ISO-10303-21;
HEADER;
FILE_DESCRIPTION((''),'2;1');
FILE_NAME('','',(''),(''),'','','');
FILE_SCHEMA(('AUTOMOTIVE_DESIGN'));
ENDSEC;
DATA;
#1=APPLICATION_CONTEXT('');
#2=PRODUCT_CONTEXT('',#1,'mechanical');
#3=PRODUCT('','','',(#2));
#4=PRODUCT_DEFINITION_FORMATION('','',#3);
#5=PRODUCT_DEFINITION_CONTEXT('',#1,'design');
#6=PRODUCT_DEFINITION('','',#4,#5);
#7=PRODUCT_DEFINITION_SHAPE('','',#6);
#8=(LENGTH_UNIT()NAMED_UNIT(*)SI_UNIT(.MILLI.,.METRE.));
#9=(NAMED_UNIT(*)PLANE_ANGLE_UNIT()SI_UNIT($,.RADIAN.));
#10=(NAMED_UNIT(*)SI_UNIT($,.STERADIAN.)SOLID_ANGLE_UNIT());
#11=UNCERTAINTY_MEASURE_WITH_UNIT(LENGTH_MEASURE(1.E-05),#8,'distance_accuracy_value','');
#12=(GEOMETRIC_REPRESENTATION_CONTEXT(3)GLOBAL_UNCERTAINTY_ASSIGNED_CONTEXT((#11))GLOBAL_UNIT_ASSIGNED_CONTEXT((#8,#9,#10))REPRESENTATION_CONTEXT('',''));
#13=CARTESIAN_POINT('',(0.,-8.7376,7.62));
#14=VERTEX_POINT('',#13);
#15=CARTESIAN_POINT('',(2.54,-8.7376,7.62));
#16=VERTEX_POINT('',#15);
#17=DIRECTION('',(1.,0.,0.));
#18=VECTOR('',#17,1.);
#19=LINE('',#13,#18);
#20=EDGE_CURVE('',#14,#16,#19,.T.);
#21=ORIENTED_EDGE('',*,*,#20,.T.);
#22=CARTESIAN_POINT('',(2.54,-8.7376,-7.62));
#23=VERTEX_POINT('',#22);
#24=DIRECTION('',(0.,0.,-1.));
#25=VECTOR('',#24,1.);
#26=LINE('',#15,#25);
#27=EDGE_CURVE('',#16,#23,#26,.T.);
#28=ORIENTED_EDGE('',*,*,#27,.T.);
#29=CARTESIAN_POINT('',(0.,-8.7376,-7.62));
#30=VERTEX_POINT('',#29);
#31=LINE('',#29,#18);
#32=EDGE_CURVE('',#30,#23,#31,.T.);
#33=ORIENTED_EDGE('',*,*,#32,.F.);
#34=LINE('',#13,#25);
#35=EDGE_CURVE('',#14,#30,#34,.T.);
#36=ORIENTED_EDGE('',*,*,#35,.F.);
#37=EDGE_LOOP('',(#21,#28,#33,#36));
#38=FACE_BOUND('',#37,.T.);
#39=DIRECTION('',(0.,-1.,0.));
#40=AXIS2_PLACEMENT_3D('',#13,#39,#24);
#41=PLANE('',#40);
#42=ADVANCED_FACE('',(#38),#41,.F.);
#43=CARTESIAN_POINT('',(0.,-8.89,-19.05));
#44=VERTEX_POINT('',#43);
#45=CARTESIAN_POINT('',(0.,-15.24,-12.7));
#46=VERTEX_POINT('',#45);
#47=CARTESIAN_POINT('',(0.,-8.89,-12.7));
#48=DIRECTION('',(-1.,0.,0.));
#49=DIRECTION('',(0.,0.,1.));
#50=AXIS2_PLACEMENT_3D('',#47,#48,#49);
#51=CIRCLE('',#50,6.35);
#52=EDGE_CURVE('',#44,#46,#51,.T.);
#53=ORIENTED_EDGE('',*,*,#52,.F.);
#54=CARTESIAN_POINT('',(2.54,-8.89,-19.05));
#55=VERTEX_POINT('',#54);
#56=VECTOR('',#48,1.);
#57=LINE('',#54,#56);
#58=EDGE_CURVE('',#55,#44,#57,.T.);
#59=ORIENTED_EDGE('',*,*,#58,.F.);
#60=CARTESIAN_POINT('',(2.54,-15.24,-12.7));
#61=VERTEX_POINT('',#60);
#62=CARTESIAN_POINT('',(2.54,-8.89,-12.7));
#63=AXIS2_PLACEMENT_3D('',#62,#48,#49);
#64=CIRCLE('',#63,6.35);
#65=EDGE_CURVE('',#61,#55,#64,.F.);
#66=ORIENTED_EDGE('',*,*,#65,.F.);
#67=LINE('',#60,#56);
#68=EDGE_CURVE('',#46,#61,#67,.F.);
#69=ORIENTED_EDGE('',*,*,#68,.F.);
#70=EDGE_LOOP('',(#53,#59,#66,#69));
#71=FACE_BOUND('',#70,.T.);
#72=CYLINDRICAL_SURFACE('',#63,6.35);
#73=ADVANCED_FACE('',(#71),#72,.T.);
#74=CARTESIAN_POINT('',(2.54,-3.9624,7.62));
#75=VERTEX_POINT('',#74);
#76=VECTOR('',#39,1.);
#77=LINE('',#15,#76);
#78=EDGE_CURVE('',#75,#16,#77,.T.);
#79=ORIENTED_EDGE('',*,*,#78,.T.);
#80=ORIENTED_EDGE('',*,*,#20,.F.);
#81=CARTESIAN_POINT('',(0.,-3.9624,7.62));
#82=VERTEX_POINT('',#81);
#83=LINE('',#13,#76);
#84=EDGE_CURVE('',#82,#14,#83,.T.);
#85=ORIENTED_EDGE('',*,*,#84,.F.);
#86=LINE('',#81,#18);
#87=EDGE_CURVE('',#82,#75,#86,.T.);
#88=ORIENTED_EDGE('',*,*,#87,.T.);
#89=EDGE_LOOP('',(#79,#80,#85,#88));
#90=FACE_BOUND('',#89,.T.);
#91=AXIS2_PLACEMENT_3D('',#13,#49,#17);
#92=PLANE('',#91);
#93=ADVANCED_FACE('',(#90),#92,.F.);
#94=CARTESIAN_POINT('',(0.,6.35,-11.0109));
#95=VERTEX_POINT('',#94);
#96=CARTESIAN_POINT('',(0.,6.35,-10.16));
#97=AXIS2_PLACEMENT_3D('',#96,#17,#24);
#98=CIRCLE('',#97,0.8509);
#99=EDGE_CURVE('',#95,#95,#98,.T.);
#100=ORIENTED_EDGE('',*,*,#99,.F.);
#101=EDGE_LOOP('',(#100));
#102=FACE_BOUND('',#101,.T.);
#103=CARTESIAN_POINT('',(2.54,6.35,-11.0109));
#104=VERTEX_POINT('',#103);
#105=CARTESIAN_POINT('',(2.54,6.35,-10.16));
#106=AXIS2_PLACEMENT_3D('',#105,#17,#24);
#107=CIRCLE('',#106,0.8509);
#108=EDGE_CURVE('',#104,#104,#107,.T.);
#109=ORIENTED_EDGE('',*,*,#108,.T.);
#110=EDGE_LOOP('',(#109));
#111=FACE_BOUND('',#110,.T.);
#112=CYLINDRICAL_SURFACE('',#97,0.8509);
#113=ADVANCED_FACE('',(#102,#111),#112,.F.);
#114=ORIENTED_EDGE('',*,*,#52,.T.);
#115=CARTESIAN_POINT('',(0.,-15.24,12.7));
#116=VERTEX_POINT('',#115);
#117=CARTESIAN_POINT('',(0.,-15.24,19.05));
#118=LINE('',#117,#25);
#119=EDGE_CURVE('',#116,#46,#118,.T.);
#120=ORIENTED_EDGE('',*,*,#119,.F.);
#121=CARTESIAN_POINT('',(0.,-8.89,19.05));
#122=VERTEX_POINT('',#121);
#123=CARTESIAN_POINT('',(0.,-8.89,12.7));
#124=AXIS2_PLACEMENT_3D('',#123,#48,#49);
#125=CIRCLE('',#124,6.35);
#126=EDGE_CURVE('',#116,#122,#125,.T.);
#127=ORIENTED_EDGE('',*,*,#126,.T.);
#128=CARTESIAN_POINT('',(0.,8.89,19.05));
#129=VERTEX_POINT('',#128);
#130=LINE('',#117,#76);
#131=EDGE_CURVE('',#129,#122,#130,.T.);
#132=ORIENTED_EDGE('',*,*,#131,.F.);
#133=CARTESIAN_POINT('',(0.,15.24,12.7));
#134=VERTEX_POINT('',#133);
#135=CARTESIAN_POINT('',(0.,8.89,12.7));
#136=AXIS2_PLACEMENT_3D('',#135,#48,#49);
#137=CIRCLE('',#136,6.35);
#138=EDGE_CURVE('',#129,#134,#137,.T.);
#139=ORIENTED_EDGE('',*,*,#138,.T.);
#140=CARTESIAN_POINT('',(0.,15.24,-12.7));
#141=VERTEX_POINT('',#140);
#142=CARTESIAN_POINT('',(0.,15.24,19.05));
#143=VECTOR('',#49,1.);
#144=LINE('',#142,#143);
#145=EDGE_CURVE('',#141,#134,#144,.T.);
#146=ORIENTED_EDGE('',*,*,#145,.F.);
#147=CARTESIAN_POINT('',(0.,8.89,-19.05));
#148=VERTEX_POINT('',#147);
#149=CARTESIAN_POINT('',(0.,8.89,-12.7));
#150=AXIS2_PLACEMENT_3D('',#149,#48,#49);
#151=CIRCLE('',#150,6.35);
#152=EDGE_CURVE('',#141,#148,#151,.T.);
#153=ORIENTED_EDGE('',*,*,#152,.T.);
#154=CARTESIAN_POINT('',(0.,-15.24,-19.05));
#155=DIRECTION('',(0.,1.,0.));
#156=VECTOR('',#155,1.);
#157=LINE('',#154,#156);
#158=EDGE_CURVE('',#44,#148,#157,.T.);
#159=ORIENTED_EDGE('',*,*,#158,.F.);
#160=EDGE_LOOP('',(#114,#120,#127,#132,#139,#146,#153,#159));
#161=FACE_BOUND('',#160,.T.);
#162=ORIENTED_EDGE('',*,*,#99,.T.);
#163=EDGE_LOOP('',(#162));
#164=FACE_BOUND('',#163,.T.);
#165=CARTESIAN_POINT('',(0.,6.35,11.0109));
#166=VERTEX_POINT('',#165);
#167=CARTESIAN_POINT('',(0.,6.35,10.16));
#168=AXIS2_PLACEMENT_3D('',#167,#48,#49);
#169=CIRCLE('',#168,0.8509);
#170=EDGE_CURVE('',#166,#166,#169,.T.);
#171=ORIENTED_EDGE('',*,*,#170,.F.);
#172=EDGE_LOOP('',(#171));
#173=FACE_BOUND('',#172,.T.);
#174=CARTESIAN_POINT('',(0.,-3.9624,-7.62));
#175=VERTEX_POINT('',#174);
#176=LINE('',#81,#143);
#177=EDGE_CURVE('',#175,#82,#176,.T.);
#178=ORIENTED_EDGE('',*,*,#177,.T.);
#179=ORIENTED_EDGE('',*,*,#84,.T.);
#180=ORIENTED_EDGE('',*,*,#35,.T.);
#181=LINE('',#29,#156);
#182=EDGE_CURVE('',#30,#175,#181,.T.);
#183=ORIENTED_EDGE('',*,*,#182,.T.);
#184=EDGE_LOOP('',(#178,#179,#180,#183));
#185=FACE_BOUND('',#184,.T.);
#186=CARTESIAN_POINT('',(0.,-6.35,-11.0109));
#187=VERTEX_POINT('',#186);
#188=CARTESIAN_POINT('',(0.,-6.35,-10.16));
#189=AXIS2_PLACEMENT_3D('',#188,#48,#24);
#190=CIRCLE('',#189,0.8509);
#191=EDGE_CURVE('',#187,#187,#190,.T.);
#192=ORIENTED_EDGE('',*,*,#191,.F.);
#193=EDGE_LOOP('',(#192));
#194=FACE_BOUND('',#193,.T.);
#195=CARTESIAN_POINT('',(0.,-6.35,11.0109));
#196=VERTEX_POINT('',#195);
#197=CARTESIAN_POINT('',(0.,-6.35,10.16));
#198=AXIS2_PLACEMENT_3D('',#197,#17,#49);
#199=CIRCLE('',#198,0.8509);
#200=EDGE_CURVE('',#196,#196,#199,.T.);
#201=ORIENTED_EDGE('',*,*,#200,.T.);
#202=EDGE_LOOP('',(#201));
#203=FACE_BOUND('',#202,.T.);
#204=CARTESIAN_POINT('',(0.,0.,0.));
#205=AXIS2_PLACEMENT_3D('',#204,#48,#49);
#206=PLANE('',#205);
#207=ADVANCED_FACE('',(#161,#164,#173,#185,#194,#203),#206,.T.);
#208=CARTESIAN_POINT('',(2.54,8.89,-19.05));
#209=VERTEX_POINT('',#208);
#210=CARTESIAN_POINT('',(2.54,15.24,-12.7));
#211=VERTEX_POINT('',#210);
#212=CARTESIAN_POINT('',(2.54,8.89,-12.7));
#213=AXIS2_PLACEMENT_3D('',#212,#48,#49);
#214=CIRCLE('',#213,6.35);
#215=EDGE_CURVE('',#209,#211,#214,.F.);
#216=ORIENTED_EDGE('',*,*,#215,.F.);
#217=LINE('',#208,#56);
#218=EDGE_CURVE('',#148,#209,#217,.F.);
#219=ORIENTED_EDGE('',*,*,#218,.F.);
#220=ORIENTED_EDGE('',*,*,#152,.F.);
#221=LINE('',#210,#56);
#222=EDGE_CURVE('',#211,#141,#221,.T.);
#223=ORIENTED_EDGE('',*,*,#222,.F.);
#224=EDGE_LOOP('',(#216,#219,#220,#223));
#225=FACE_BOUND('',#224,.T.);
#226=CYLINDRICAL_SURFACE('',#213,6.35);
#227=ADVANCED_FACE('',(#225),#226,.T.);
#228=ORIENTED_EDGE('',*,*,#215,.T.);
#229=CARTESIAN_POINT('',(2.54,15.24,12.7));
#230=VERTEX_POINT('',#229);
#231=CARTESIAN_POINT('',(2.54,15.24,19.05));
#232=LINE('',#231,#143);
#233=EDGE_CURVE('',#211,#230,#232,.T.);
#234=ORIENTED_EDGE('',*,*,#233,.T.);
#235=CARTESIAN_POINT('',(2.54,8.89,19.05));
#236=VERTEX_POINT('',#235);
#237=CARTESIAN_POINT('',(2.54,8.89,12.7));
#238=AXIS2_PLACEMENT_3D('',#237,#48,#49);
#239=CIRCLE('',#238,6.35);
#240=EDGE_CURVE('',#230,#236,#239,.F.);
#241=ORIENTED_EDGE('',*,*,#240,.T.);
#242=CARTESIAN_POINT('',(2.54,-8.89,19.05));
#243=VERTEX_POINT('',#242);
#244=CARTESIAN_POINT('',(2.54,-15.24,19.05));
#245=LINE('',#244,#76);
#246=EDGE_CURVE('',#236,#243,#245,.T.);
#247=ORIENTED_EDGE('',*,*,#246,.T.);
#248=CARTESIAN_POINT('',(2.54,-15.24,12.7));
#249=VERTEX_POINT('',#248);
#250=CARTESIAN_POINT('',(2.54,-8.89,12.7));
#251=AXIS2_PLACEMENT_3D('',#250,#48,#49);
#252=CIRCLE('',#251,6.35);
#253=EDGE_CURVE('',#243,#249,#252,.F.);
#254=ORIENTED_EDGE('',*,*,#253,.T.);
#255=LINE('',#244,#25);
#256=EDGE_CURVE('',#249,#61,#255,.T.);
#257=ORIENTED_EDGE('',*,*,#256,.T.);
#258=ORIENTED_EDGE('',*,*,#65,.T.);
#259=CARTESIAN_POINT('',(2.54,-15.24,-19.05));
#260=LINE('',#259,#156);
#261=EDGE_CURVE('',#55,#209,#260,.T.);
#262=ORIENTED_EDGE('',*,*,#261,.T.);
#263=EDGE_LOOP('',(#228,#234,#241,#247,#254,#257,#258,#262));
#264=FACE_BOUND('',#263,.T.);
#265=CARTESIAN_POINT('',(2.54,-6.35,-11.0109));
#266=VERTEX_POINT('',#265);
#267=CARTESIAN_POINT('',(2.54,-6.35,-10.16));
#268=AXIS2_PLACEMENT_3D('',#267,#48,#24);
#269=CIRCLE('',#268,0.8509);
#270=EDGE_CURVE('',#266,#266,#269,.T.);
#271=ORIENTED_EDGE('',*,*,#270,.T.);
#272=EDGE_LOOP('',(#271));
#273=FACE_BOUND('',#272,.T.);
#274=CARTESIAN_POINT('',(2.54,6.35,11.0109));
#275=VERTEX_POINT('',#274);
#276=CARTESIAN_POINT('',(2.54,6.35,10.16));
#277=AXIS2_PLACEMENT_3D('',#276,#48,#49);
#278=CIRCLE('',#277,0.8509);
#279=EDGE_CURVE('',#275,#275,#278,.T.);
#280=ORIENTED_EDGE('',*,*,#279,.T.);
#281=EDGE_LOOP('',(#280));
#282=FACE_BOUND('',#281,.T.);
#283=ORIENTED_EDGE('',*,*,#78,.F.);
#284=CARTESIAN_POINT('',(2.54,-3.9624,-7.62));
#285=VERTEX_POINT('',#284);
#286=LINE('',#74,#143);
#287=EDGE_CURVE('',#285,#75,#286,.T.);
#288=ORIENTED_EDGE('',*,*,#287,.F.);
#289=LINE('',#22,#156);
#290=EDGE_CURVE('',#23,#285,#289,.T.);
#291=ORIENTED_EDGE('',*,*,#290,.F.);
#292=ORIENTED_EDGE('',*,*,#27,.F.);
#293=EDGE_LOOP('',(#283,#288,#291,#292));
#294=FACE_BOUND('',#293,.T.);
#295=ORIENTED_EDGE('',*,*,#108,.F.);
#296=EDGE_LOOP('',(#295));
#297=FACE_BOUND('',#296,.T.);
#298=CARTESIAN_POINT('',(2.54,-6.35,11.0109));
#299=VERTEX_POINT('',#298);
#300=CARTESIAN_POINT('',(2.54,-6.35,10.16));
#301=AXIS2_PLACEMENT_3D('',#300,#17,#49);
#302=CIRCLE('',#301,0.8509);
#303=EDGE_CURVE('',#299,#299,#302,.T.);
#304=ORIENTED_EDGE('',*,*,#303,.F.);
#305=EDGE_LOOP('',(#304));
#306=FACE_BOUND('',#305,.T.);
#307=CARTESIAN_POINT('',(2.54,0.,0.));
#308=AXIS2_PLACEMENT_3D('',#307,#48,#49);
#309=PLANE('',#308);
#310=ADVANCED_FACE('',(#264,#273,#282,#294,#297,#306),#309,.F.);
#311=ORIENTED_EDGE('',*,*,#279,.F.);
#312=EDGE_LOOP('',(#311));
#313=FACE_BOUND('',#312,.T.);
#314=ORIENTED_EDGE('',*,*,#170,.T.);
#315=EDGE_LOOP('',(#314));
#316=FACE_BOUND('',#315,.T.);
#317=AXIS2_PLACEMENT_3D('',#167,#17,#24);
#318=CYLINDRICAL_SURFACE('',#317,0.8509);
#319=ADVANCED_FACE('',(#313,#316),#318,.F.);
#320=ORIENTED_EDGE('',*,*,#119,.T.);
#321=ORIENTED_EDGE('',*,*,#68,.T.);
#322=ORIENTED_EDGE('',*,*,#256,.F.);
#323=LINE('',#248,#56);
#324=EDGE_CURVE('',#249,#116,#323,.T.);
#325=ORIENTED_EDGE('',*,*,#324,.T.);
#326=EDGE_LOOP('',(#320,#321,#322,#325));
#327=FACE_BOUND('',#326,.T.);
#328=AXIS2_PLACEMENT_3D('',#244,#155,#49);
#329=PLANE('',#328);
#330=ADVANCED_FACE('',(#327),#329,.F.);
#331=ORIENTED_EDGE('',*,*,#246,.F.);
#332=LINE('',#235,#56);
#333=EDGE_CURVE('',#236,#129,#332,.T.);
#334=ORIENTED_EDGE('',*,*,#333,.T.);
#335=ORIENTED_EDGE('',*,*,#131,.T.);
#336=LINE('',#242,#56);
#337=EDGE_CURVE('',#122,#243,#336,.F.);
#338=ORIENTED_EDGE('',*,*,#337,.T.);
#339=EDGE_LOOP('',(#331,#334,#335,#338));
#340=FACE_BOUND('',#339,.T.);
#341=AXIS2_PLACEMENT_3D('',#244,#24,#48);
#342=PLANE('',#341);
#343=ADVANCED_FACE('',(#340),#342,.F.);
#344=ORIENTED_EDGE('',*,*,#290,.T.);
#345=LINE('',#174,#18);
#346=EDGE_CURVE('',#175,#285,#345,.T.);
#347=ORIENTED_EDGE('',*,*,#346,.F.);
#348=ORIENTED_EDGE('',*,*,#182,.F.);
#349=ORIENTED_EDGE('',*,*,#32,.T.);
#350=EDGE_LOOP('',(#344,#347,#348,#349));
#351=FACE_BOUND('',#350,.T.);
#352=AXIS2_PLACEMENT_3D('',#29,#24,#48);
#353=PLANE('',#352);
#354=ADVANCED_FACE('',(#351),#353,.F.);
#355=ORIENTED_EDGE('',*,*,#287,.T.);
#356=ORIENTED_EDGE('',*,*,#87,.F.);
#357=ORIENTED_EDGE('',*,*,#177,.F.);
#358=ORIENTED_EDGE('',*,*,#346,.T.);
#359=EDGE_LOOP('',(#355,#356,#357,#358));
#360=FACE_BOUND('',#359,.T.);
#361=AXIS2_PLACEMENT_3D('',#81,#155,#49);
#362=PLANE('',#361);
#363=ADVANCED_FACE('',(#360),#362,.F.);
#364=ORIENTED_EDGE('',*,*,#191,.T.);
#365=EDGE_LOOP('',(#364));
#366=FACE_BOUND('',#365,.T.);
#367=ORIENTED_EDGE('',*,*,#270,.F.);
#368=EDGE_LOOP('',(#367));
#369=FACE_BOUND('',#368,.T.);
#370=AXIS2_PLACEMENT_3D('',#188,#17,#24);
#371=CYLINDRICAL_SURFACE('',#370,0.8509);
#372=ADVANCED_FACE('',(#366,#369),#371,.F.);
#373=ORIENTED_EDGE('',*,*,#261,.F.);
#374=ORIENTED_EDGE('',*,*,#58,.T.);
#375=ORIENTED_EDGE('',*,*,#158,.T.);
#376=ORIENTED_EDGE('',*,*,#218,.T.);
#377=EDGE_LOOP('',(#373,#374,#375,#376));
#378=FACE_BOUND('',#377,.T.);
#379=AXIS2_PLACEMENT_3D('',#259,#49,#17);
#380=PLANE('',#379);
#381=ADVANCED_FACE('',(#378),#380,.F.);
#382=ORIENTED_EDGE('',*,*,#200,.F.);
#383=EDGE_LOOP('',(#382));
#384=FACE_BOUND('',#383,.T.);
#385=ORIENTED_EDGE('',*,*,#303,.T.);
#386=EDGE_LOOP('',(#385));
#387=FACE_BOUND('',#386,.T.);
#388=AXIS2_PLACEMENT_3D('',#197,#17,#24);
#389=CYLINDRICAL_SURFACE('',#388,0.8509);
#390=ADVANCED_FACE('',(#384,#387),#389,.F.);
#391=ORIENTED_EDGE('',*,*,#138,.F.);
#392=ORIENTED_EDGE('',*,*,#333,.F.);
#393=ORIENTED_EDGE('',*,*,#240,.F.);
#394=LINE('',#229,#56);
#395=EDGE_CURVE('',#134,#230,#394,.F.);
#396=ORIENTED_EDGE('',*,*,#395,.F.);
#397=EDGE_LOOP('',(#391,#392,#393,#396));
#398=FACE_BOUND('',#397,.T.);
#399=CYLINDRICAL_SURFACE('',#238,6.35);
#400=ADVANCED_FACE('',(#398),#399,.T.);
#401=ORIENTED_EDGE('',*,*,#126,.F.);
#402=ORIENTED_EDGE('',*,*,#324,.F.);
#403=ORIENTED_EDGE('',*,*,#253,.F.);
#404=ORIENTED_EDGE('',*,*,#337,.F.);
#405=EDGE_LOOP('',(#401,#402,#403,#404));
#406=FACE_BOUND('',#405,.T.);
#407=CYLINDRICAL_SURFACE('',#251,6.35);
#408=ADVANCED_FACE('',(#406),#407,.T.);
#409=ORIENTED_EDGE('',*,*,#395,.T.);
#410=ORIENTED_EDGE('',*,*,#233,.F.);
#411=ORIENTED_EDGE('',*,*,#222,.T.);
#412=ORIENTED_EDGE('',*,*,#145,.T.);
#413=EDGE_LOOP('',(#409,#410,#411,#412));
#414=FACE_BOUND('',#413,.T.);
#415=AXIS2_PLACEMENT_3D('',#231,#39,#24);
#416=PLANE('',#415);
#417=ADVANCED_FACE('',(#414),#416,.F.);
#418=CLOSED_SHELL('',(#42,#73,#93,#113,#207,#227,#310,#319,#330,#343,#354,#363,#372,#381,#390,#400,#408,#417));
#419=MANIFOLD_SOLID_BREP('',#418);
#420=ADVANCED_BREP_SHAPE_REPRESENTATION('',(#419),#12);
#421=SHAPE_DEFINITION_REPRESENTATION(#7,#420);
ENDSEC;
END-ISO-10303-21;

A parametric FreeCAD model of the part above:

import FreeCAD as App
import Part
import Sketcher
from FreeCAD import Vector
Q = App.Units.Quantity


def edges_at(feature, points):
    """Names of the edges that pass closest to the given points."""
    edges = feature.Shape.Edges
    near = lambda p: min(range(len(edges)), key=lambda i: edges[i].distToShape(Part.Vertex(*p))[0])
    return sorted({f"Edge{near(p) + 1}" for p in points})


def add_polygon(sketch, points):
    """Adds a closed chain of lines whose ends are joined by coincident constraints."""
    first, n = sketch.GeometryCount, len(points)
    for a, b in zip(points, points[1:] + points[:1]):
        sketch.addGeometry(Part.LineSegment(App.Vector(*a, 0), App.Vector(*b, 0)), False)
    for i in range(n):
        sketch.addConstraint(Sketcher.Constraint("Coincident", first + i, 2, first + (i + 1) % n, 1))

doc = App.newDocument("Part")
body = doc.addObject("PartDesign::Body", "Body")

# Sketch on YZ plane
sketch1 = body.newObject("Sketcher::SketchObject", "Sketch")
sketch1.AttachmentSupport = (doc.getObject("YZ_Plane"), [""])
sketch1.MapMode = "FlatFace"
add_polygon(sketch1, [(15.24, 19.05), (-15.24, 19.05), (-15.24, -19.05), (15.24, -19.05)])  # lines 0-3
sketch1.addConstraint([
    Sketcher.Constraint("Horizontal", 0),
    Sketcher.Constraint("Vertical", 1),
    Sketcher.Constraint("Horizontal", 2),
    Sketcher.Constraint("Vertical", 3),
    Sketcher.Constraint("Symmetric", 0, 2, 2, 2, -1, 1),
    Sketcher.Constraint("DistanceX", 0, 2, 0, 1, Q("1.2 in")),
    Sketcher.Constraint("DistanceY", 1, 2, 1, 1, Q("1.5 in")),
])
pad1 = body.newObject("PartDesign::Pad", "Pad")
pad1.Profile = sketch1
pad1.Length = Q("0.1 in")

# Sketch on YZ plane
sketch2 = body.newObject("Sketcher::SketchObject", "Sketch001")
sketch2.AttachmentSupport = (doc.getObject("YZ_Plane"), [""])
sketch2.MapMode = "FlatFace"
sketch2.AttachmentOffset = App.Placement(Vector(0, 0, 0.1 * 25.4), App.Rotation())
sketch2.addGeometry(Part.Circle(Vector(6.35, -10.16, 0), Vector(0, 0, 1), 0.8509), False)
sketch2.addConstraint([
    Sketcher.Constraint("Diameter", 0, Q("0.067 in")),
    Sketcher.Constraint("DistanceY", 0, 3, -1, 1, Q("0.4 in")),
    Sketcher.Constraint("DistanceX", -1, 1, 0, 3, Q("0.25 in")),
])
pocket1 = body.newObject("PartDesign::Pocket", "Pocket")
pocket1.Profile = sketch2
pocket1.Length = Q("0.1 in")
doc.recompute()

mirrored = body.newObject("PartDesign::Mirrored", "Mirrored")
mirrored.Originals = [pocket1]
mirrored.MirrorPlane = (doc.getObject("XY_Plane"), [""])
body.Tip = mirrored
doc.recompute()

mirrored2 = body.newObject("PartDesign::Mirrored", "Mirrored001")
mirrored2.Originals = [pocket1]
mirrored2.MirrorPlane = (doc.getObject("XZ_Plane"), [""])
body.Tip = mirrored2

# Sketch on YZ plane
sketch3 = body.newObject("Sketcher::SketchObject", "Sketch002")
sketch3.AttachmentSupport = (doc.getObject("YZ_Plane"), [""])
sketch3.MapMode = "FlatFace"
sketch3.AttachmentOffset = App.Placement(Vector(0, 0, 0.1 * 25.4), App.Rotation())
sketch3.addGeometry(Part.Circle(Vector(-6.35, 10.16, 0), Vector(0, 0, 1), 0.8509), False)
sketch3.addConstraint([
    Sketcher.Constraint("Diameter", 0, Q("0.067 in")),
    Sketcher.Constraint("DistanceY", -1, 1, 0, 3, Q("0.4 in")),
    Sketcher.Constraint("DistanceX", 0, 3, -1, 1, Q("0.25 in")),
])
pocket2 = body.newObject("PartDesign::Pocket", "Pocket001")
pocket2.Profile = sketch3
pocket2.Length = Q("0.1 in")
doc.recompute()

fillet = body.newObject("PartDesign::Fillet", "Fillet")
fillet.Base = (pocket2, edges_at(pocket2, [
    (1.27, -15.24, -19.05),
    (1.27, -15.24, 19.05),
    (1.27, 15.24, 19.05),
    (1.27, 15.24, -19.05),
]))
fillet.Radius = Q("0.25 in")

# Sketch on YZ plane
sketch4 = body.newObject("Sketcher::SketchObject", "Sketch003")
sketch4.AttachmentSupport = (doc.getObject("YZ_Plane"), [""])
sketch4.MapMode = "FlatFace"
sketch4.AttachmentOffset = App.Placement(Vector(0, 0, 0.1 * 25.4), App.Rotation())
add_polygon(sketch4, [(-3.9624, 7.62), (-8.7376, 7.62), (-8.7376, -7.62), (-3.9624, -7.62)])  # lines 0-3
sketch4.addConstraint([
    Sketcher.Constraint("Horizontal", 0),
    Sketcher.Constraint("Vertical", 1),
    Sketcher.Constraint("Horizontal", 2),
    Sketcher.Constraint("Vertical", 3),
    Sketcher.Constraint("DistanceY", 1, 2, 1, 1, Q("0.6 in")),
    Sketcher.Constraint("DistanceY", -1, 1, 0, 2, Q("0.3 in")),
    Sketcher.Constraint("DistanceX", 0, 2, 0, 1, Q("0.188 in")),
    Sketcher.Constraint("DistanceX", 0, 2, -1, 1, Q("0.344 in")),
])
pocket3 = body.newObject("PartDesign::Pocket", "Pocket002")
pocket3.Profile = sketch4
pocket3.Length = Q("0.1 in")

doc.recompute()
